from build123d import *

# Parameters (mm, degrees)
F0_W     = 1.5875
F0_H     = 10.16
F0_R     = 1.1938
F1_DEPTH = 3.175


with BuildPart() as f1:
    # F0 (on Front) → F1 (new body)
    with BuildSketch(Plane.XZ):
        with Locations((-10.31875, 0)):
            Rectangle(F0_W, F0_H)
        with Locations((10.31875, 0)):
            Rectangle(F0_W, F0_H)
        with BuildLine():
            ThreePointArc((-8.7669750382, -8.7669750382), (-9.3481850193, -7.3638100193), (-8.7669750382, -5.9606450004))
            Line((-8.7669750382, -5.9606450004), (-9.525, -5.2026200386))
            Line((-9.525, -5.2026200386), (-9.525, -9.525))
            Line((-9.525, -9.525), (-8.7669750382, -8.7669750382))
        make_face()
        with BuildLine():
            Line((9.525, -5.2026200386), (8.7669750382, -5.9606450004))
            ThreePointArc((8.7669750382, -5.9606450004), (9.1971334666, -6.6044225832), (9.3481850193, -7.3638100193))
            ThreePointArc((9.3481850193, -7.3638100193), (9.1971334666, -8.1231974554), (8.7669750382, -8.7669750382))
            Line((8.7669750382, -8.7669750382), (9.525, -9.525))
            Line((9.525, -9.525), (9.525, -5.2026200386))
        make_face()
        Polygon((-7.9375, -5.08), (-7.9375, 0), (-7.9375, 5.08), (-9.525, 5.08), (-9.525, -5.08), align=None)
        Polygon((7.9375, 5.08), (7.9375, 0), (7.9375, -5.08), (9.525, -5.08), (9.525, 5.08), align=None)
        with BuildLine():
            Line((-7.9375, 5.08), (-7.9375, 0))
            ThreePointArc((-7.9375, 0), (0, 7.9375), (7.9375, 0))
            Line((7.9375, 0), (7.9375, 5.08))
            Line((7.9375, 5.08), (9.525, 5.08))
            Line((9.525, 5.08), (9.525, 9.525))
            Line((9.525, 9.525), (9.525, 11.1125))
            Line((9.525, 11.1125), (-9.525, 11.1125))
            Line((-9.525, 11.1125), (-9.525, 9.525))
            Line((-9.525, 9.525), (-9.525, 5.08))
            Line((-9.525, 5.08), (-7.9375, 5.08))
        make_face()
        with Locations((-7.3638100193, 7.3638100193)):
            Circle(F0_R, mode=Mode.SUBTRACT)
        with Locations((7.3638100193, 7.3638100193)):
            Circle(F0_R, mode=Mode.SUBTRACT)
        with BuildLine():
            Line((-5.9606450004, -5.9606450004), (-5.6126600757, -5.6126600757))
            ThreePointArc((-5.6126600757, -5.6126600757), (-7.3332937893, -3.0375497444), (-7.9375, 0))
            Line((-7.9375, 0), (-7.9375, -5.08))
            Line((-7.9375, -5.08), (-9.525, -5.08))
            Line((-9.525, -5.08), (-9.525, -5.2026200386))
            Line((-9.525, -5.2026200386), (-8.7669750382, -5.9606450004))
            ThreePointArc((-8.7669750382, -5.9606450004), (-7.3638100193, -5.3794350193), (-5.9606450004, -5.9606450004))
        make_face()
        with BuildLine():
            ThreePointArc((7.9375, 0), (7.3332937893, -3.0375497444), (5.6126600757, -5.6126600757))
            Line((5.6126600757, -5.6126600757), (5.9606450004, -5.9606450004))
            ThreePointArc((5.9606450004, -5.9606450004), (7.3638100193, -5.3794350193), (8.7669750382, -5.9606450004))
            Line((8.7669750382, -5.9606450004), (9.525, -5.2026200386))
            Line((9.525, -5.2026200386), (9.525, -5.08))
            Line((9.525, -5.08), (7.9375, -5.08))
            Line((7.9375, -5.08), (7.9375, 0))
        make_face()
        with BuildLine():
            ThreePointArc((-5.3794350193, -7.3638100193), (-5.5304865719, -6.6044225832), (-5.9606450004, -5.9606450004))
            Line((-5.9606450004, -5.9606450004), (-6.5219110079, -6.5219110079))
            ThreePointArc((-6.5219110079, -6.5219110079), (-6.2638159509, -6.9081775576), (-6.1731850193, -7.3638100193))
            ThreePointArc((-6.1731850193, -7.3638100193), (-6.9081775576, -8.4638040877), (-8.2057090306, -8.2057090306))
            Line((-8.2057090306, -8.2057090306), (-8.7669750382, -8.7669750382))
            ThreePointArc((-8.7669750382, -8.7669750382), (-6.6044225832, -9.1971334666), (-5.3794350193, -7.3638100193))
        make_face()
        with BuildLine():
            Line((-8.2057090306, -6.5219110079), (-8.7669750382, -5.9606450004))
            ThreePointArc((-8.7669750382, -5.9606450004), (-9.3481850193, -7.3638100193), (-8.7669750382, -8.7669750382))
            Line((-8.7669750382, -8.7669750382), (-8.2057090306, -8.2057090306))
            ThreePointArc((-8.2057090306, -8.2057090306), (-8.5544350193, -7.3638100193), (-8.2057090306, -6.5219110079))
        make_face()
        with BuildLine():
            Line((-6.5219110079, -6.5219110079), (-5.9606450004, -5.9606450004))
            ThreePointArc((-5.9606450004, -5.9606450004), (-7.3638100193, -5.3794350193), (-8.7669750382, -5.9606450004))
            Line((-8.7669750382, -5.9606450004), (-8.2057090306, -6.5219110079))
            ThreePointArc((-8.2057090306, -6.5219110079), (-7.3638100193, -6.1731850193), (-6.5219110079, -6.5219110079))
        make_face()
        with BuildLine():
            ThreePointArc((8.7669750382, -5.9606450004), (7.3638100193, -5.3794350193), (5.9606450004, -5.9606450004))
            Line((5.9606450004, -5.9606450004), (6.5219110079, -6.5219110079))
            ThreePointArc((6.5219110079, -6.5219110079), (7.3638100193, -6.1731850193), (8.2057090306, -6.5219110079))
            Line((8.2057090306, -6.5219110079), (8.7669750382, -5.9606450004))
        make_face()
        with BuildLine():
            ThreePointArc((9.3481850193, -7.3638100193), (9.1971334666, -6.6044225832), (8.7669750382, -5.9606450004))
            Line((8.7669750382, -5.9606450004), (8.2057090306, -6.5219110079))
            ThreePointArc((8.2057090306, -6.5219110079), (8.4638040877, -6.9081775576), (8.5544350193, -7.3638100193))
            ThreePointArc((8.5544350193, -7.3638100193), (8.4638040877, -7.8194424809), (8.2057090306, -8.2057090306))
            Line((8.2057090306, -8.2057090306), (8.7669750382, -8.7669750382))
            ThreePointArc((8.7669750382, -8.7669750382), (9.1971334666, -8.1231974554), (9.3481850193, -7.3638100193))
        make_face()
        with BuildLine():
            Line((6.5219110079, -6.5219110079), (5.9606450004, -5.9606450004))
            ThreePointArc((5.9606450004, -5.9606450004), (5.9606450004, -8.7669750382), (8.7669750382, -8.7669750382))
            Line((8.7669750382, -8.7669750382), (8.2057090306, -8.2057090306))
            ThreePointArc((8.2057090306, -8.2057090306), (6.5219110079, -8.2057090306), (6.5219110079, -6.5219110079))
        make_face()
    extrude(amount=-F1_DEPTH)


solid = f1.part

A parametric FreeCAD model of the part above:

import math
import FreeCAD as App
import Part
import Sketcher
Q = App.Units.Quantity

doc = App.newDocument("Part")
body = doc.addObject("PartDesign::Body", "Body")

sketch1 = doc.addObject("Sketcher::SketchObject", "Sketch")
body.addObject(sketch1)
sketch1.AttachmentSupport = (doc.XZ_Plane, [""])
sketch1.MapMode = "FlatFace"
sketch1.addGeometry([
    Part.ArcOfCircle(Part.Circle(App.Vector(-7.36, -7.36, 0), App.Vector(0, 0, 1), 1.98), math.radians(0), math.radians(45)),
    Part.LineSegment(App.Vector(-5.96, -5.96, 0), App.Vector(-5.61, -5.61, 0)),
    Part.ArcOfCircle(Part.Circle(App.Vector(0, 0, 0), App.Vector(0, 0, 1), 7.94), math.radians(180), math.radians(225)),
    Part.ArcOfCircle(Part.Circle(App.Vector(0, 0, 0), App.Vector(0, 0, 1), 7.94), math.radians(0), math.radians(180)),
    Part.ArcOfCircle(Part.Circle(App.Vector(0, 0, 0), App.Vector(0, 0, 1), 7.94), math.radians(-45), math.radians(0)),
    Part.LineSegment(App.Vector(5.61, -5.61, 0), App.Vector(5.96, -5.96, 0)),
    Part.ArcOfCircle(Part.Circle(App.Vector(7.36, -7.36, 0), App.Vector(0, 0, 1), 1.98), math.radians(135), math.radians(315)),
    Part.LineSegment(App.Vector(8.77, -8.77, 0), App.Vector(9.53, -9.53, 0)),
    Part.LineSegment(App.Vector(9.53, -9.53, 0), App.Vector(9.53, -5.08, 0)),
    Part.LineSegment(App.Vector(9.53, -5.08, 0), App.Vector(11.11, -5.08, 0)),
    Part.LineSegment(App.Vector(11.11, -5.08, 0), App.Vector(11.11, 5.08, 0)),
    Part.LineSegment(App.Vector(11.11, 5.08, 0), App.Vector(9.53, 5.08, 0)),
    Part.LineSegment(App.Vector(9.53, 5.08, 0), App.Vector(9.53, 11.11, 0)),
    Part.LineSegment(App.Vector(9.53, 11.11, 0), App.Vector(-9.53, 11.11, 0)),
    Part.LineSegment(App.Vector(-9.53, 11.11, 0), App.Vector(-9.53, 5.08, 0)),
    Part.LineSegment(App.Vector(-9.53, 5.08, 0), App.Vector(-11.11, 5.08, 0)),
    Part.LineSegment(App.Vector(-11.11, 5.08, 0), App.Vector(-11.11, -5.08, 0)),
    Part.LineSegment(App.Vector(-11.11, -5.08, 0), App.Vector(-9.53, -5.08, 0)),
    Part.LineSegment(App.Vector(-9.53, -5.08, 0), App.Vector(-9.53, -9.53, 0)),
    Part.LineSegment(App.Vector(-9.53, -9.53, 0), App.Vector(-8.77, -8.77, 0)),
    Part.ArcOfCircle(Part.Circle(App.Vector(-7.36, -7.36, 0), App.Vector(0, 0, 1), 1.98), math.radians(-135), math.radians(0)),
    Part.ArcOfCircle(Part.Circle(App.Vector(7.36, -7.36, 0), App.Vector(0, 0, 1), 1.19), math.radians(45), math.radians(135)),
    Part.ArcOfCircle(Part.Circle(App.Vector(7.36, -7.36, 0), App.Vector(0, 0, 1), 1.19), math.radians(0), math.radians(45)),
    Part.ArcOfCircle(Part.Circle(App.Vector(7.36, -7.36, 0), App.Vector(0, 0, 1), 1.19), math.radians(-45), math.radians(0)),
    Part.ArcOfCircle(Part.Circle(App.Vector(7.36, -7.36, 0), App.Vector(0, 0, 1), 1.19), math.radians(135), math.radians(315)),
    Part.ArcOfCircle(Part.Circle(App.Vector(-7.36, -7.36, 0), App.Vector(0, 0, 1), 1.19), math.radians(135), math.radians(225)),
    Part.ArcOfCircle(Part.Circle(App.Vector(-7.36, -7.36, 0), App.Vector(0, 0, 1), 1.19), math.radians(45), math.radians(135)),
    Part.ArcOfCircle(Part.Circle(App.Vector(-7.36, -7.36, 0), App.Vector(0, 0, 1), 1.19), math.radians(0), math.radians(45)),
    Part.ArcOfCircle(Part.Circle(App.Vector(-7.36, -7.36, 0), App.Vector(0, 0, 1), 1.19), math.radians(-135), math.radians(0)),
    Part.Circle(App.Vector(-7.36, 7.36, 0), App.Vector(0, 0, 1), 1.19),
    Part.Circle(App.Vector(7.36, 7.36, 0), App.Vector(0, 0, 1), 1.19),
], False)
sketch1.addConstraint([
    Sketcher.Constraint("Coincident", 0, 2, 1, 1),
    Sketcher.Constraint("Coincident", 1, 2, 2, 2),
    Sketcher.Constraint("Tangent", 2, 1, 3, 2),
    Sketcher.Constraint("Tangent", 3, 1, 4, 2),
    Sketcher.Constraint("Coincident", 4, 1, 5, 1),
    Sketcher.Constraint("Coincident", 5, 2, 6, 1),
    Sketcher.Constraint("Coincident", 6, 2, 7, 1),
    Sketcher.Constraint("Coincident", 7, 2, 8, 1),
    Sketcher.Constraint("Coincident", 8, 2, 9, 1),
    Sketcher.Constraint("Coincident", 9, 2, 10, 1),
    Sketcher.Constraint("Coincident", 10, 2, 11, 1),
    Sketcher.Constraint("Coincident", 11, 2, 12, 1),
    Sketcher.Constraint("Coincident", 12, 2, 13, 1),
    Sketcher.Constraint("Coincident", 13, 2, 14, 1),
    Sketcher.Constraint("Coincident", 14, 2, 15, 1),
    Sketcher.Constraint("Coincident", 15, 2, 16, 1),
    Sketcher.Constraint("Coincident", 16, 2, 17, 1),
    Sketcher.Constraint("Coincident", 17, 2, 18, 1),
    Sketcher.Constraint("Coincident", 18, 2, 19, 1),
    Sketcher.Constraint("Coincident", 19, 2, 20, 1),
    Sketcher.Constraint("Tangent", 20, 2, 0, 1),
    Sketcher.Constraint("Tangent", 21, 1, 22, 2),
    Sketcher.Constraint("Tangent", 22, 1, 23, 2),
    Sketcher.Constraint("Tangent", 23, 1, 24, 2),
    Sketcher.Constraint("Tangent", 24, 1, 21, 2),
    Sketcher.Constraint("Tangent", 25, 1, 26, 2),
    Sketcher.Constraint("Tangent", 26, 1, 27, 2),
    Sketcher.Constraint("Tangent", 27, 1, 28, 2),
    Sketcher.Constraint("Tangent", 28, 1, 25, 2),
    Sketcher.Constraint("Vertical", 8),
    Sketcher.Constraint("Horizontal", 9),
    Sketcher.Constraint("Vertical", 10),
    Sketcher.Constraint("Horizontal", 11),
    Sketcher.Constraint("Vertical", 12),
    Sketcher.Constraint("Horizontal", 13),
    Sketcher.Constraint("Vertical", 14),
    Sketcher.Constraint("Horizontal", 15),
    Sketcher.Constraint("Vertical", 16),
    Sketcher.Constraint("Horizontal", 17),
    Sketcher.Constraint("Vertical", 18),
    Sketcher.Constraint("Coincident", 2, 3, -1, 1),
    Sketcher.Constraint("Coincident", 21, 3, 6, 3),
    Sketcher.Constraint("Coincident", 25, 3, 0, 3),
    Sketcher.Constraint("Equal", 2, 3),
    Sketcher.Constraint("Equal", 3, 4),
    Sketcher.Constraint("Equal", 0, 6),
    Sketcher.Constraint("Equal", 6, 20),
    Sketcher.Constraint("Equal", 21, 22),
    Sketcher.Constraint("Equal", 24, 25),
    Sketcher.Constraint("Equal", 25, 26),
    Sketcher.Constraint("Equal", 29, 30),
    Sketcher.Constraint("Symmetric", 6, 3, 29, 3, -1, 1),
    Sketcher.Constraint("Symmetric", 0, 3, 30, 3, -1, 1),
    Sketcher.Constraint("Symmetric", 8, 2, 14, 2, -1, 1),
    Sketcher.Constraint("Symmetric", 10, 2, 16, 2, -1, 1),
    Sketcher.Constraint("Symmetric", 0, 3, 6, 3, -2),
    Sketcher.Constraint("Symmetric", 11, 2, 14, 2, -2),
    Sketcher.Constraint("Symmetric", 7, 2, 18, 2, -2),
    Sketcher.Constraint("PointOnObject", 2, 1, -1),
    Sketcher.Constraint("PointOnObject", 3, 1, -1),
    Sketcher.Constraint("Perpendicular", 1, 5),
    Sketcher.Constraint("Parallel", 5, 7),
    Sketcher.Constraint("Perpendicular", 7, 19),
    Sketcher.Constraint("Horizontal", 1, 2, 4, 1),
    Sketcher.Constraint("Horizontal", 0, 2, 5, 2),
    Sketcher.Constraint("Horizontal", 28, 3, 20, 2),
    Sketcher.Constraint("Horizontal", 20, 2, 22, 1),
    Sketcher.Constraint("Horizontal", 21, 1, 24, 1),
    Sketcher.Constraint("Horizontal", 24, 1, 25, 1),
    Sketcher.Constraint("Horizontal", 25, 1, 26, 1),
    Sketcher.Constraint("Horizontal", 22, 1, 27, 1),
    Sketcher.Constraint("Horizontal", 23, 1, 28, 1),
    Sketcher.Constraint("Vertical", 21, 1, 23, 1),
    Sketcher.Constraint("Diameter", 29, Q("0.094 in")),
    Sketcher.Constraint("DistanceY", 10, 1, 10, 2, Q("0.4 in")),
    Sketcher.Constraint("Radius", 0, Q("0.078125 in")),
    Sketcher.Constraint("Radius", 2, Q("0.3125 in")),
    Sketcher.Constraint("Radius", 21, Q("0.046875 in")),
    Sketcher.Constraint("DistanceX", 13, 2, 13, 1, Q("0.75 in")),
    Sketcher.Constraint("DistanceX", 9, 1, 9, 2, Q("0.0625 in")),
    Sketcher.Constraint("DistanceY", 8, 1, 8, 2, Q("0.175 in")),
    Sketcher.Constraint("DistanceY", 12, 1, 12, 2, Q("0.2375 in")),
    Sketcher.Constraint("DistanceX", 0, 2, 1, 2, Q("0.0137002 in")),
    Sketcher.Constraint("DistanceX", 22, 3, 21, 1, 0.841899),
    Sketcher.Constraint("DistanceX", 0, 3, -1, 1, 7.36381),
    Sketcher.Constraint("DistanceX", 1, 2, -1, 1, 5.61266),
])
pad1 = doc.addObject("PartDesign::Pad", "Pad")
body.addObject(pad1)
pad1.Profile = sketch1
pad1.Length = Q("0.125 in")
pad1.Reversed = True

doc.recompute()
